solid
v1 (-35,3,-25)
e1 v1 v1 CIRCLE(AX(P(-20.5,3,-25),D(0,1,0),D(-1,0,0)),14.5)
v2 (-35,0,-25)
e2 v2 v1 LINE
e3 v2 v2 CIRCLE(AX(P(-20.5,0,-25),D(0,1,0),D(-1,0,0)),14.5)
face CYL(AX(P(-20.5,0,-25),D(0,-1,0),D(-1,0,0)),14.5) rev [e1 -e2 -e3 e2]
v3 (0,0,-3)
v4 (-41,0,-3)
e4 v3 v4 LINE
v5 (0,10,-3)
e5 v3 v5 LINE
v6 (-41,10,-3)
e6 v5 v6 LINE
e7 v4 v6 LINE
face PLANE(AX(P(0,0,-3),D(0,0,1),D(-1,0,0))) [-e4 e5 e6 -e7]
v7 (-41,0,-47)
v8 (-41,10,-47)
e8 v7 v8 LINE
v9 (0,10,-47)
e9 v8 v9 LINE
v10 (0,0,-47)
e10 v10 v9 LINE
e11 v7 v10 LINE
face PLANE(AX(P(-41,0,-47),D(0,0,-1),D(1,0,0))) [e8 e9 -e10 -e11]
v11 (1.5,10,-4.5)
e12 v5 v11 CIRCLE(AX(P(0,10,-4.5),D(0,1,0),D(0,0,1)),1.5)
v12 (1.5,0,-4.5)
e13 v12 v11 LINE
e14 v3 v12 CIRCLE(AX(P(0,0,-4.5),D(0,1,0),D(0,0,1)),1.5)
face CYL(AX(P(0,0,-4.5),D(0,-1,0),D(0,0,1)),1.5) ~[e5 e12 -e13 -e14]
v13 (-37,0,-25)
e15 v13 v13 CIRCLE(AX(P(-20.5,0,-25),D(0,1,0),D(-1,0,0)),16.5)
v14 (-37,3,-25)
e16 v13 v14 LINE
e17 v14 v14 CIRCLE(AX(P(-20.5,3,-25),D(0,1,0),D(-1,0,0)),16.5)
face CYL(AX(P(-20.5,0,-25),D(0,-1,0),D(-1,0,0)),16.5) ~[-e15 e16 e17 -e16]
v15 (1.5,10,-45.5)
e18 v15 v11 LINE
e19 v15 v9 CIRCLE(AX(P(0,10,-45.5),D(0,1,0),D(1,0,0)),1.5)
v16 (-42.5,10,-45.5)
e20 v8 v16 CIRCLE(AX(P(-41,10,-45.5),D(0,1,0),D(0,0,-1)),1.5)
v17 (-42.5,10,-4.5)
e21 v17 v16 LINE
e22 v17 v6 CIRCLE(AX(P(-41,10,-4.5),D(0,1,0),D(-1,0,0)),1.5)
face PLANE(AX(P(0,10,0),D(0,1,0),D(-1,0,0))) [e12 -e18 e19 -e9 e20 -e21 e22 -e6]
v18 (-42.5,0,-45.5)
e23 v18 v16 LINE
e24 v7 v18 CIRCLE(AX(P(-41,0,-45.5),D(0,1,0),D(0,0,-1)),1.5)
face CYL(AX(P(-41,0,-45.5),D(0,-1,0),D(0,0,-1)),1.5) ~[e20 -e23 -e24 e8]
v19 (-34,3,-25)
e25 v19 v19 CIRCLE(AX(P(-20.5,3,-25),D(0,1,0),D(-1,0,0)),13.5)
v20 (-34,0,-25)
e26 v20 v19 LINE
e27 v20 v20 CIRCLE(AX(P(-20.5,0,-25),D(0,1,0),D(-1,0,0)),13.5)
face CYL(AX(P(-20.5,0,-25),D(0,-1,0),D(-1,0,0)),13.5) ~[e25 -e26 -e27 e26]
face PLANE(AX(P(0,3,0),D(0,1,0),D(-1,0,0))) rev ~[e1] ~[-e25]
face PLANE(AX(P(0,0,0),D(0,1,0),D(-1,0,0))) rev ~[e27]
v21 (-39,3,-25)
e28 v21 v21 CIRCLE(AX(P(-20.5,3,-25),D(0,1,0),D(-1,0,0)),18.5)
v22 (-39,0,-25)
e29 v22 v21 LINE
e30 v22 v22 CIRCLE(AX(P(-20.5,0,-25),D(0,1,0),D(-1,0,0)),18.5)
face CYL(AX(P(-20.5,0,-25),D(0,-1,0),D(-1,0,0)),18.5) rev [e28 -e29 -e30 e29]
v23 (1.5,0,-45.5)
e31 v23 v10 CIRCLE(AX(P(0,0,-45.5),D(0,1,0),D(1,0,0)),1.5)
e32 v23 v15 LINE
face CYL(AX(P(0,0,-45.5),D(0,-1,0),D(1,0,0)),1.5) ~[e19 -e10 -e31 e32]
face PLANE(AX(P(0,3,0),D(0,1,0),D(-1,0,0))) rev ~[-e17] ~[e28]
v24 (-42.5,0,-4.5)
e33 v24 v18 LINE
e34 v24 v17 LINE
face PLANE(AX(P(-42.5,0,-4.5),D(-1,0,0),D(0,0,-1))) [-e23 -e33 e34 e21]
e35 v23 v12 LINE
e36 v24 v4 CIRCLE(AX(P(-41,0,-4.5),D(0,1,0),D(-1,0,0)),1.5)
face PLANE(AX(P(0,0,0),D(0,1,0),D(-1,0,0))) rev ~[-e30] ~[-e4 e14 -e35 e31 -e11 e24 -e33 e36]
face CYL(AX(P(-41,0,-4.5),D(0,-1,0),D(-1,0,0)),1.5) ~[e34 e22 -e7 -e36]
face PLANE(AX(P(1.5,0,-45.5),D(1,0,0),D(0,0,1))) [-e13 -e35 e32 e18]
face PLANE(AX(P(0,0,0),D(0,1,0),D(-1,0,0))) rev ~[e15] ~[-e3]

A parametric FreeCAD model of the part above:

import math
import FreeCAD as App
import Part
import Sketcher
from FreeCAD import Vector
Q = App.Units.Quantity

doc = App.newDocument("Part")
params = doc.addObject("Spreadsheet::Sheet", "Params")
for row, (alias, value) in enumerate([
    ("sketch1_radius", "1.5 mm"),
    ("sketch1_width", "41 mm"),
    ("pad1_length", "10 mm"),
    ("sketch2_diameter", "37 mm"),
    ("sketch2_diameter2", "33 mm"),
    ("sketch2_diameter3", "29 mm"),
    ("sketch2_diameter4", "27 mm"),
    ("pocket1_length", "3 mm"),
], start=1):
    params.set(f"A{row}", alias)
    params.set(f"B{row}", "=" + value)
    params.setAlias(f"B{row}", alias)

body = doc.addObject("PartDesign::Body", "Body")

# Sketch on XZ plane
sketch1 = body.newObject("Sketcher::SketchObject", "Sketch")
sketch1.AttachmentSupport = (doc.getObject("XZ_Plane"), [""])
sketch1.MapMode = "FlatFace"
sketch1.addGeometry([
    Part.LineSegment(Vector(1.5, -4.5, 0), Vector(1.5, -45.5, 0)),  # 0
    Part.ArcOfCircle(Part.Circle(Vector(0, -45.5, 0), Vector(0, 0, 1), 1.5), math.radians(-90), math.radians(0)),  # 1
    Part.LineSegment(Vector(0, -47, 0), Vector(-41, -47, 0)),  # 2
    Part.ArcOfCircle(Part.Circle(Vector(-41, -45.5, 0), Vector(0, 0, 1), 1.5), math.radians(180), math.radians(270)),  # 3
    Part.LineSegment(Vector(-42.5, -45.5, 0), Vector(-42.5, -4.5, 0)),  # 4
    Part.ArcOfCircle(Part.Circle(Vector(-41, -4.5, 0), Vector(0, 0, 1), 1.5), math.radians(90), math.radians(180)),  # 5
    Part.LineSegment(Vector(-41, -3, 0), Vector(0, -3, 0)),  # 6
    Part.ArcOfCircle(Part.Circle(Vector(0, -4.5, 0), Vector(0, 0, 1), 1.5), math.radians(0), math.radians(90)),  # 7
], False)
sketch1.addConstraint([
    Sketcher.Constraint("Tangent", 0, 2, 1, 2),
    Sketcher.Constraint("Tangent", 1, 1, 2, 1),
    Sketcher.Constraint("Tangent", 2, 2, 3, 2),
    Sketcher.Constraint("Tangent", 3, 1, 4, 1),
    Sketcher.Constraint("Tangent", 4, 2, 5, 2),
    Sketcher.Constraint("Tangent", 5, 1, 6, 1),
    Sketcher.Constraint("Tangent", 6, 2, 7, 2),
    Sketcher.Constraint("Tangent", 7, 1, 0, 1),
    Sketcher.Constraint("Vertical", 0),
    Sketcher.Constraint("Horizontal", 2),
    Sketcher.Constraint("Vertical", 4),
    Sketcher.Constraint("Horizontal", 6),
    Sketcher.Constraint("Equal", 1, 3),
    Sketcher.Constraint("Equal", 3, 5),
    Sketcher.Constraint("Equal", 5, 7),
    Sketcher.Constraint("PointOnObject", 1, 3, -2),
    Sketcher.Constraint("Equal", 6, 0),
    Sketcher.Constraint("Radius", 1, Q("1.5 mm")),
    Sketcher.Constraint("DistanceX", 2, 2, 2, 1, Q("41 mm")),
    Sketcher.Constraint("DistanceY", 1, 1, -1, 1, Q("47 mm")),
])
sketch1.setExpression("Constraints[17]", "Params.sketch1_radius")
sketch1.setExpression("Constraints[18]", "Params.sketch1_width")
pad1 = body.newObject("PartDesign::Pad", "Pad")
pad1.Profile = sketch1
pad1.setExpression("Length", "Params.pad1_length")
pad1.Reversed = True

# Sketch on XZ plane
sketch2 = body.newObject("Sketcher::SketchObject", "Sketch001")
sketch2.AttachmentSupport = (doc.getObject("XZ_Plane"), [""])
sketch2.MapMode = "FlatFace"
sketch2.addGeometry([
    Part.Circle(Vector(-20.5, -25, 0), Vector(0, 0, 1), 18.5),
    Part.Circle(Vector(-20.5, -25, 0), Vector(0, 0, 1), 16.5),
    Part.Circle(Vector(-20.5, -25, 0), Vector(0, 0, 1), 14.5),
    Part.Circle(Vector(-20.5, -25, 0), Vector(0, 0, 1), 13.5),
], False)
sketch2.addConstraint([
    Sketcher.Constraint("Coincident", 1, 3, 0, 3),
    Sketcher.Constraint("Coincident", 2, 3, 0, 3),
    Sketcher.Constraint("Coincident", 3, 3, 0, 3),
    Sketcher.Constraint("Diameter", 0, Q("37 mm")),
    Sketcher.Constraint("Diameter", 1, Q("33 mm")),
    Sketcher.Constraint("Diameter", 2, Q("29 mm")),
    Sketcher.Constraint("Diameter", 3, Q("27 mm")),
    Sketcher.Constraint("DistanceY", 0, 3, -1, 1, Q("25 mm")),
    Sketcher.Constraint("DistanceX", 0, 3, -1, 1, Q("20.5 mm")),
])
sketch2.setExpression("Constraints[3]", "Params.sketch2_diameter")
sketch2.setExpression("Constraints[4]", "Params.sketch2_diameter2")
sketch2.setExpression("Constraints[5]", "Params.sketch2_diameter3")
sketch2.setExpression("Constraints[6]", "Params.sketch2_diameter4")
pocket1 = body.newObject("PartDesign::Pocket", "Pocket")
pocket1.Profile = sketch2
pocket1.setExpression("Length", "Params.pocket1_length")

doc.recompute()
